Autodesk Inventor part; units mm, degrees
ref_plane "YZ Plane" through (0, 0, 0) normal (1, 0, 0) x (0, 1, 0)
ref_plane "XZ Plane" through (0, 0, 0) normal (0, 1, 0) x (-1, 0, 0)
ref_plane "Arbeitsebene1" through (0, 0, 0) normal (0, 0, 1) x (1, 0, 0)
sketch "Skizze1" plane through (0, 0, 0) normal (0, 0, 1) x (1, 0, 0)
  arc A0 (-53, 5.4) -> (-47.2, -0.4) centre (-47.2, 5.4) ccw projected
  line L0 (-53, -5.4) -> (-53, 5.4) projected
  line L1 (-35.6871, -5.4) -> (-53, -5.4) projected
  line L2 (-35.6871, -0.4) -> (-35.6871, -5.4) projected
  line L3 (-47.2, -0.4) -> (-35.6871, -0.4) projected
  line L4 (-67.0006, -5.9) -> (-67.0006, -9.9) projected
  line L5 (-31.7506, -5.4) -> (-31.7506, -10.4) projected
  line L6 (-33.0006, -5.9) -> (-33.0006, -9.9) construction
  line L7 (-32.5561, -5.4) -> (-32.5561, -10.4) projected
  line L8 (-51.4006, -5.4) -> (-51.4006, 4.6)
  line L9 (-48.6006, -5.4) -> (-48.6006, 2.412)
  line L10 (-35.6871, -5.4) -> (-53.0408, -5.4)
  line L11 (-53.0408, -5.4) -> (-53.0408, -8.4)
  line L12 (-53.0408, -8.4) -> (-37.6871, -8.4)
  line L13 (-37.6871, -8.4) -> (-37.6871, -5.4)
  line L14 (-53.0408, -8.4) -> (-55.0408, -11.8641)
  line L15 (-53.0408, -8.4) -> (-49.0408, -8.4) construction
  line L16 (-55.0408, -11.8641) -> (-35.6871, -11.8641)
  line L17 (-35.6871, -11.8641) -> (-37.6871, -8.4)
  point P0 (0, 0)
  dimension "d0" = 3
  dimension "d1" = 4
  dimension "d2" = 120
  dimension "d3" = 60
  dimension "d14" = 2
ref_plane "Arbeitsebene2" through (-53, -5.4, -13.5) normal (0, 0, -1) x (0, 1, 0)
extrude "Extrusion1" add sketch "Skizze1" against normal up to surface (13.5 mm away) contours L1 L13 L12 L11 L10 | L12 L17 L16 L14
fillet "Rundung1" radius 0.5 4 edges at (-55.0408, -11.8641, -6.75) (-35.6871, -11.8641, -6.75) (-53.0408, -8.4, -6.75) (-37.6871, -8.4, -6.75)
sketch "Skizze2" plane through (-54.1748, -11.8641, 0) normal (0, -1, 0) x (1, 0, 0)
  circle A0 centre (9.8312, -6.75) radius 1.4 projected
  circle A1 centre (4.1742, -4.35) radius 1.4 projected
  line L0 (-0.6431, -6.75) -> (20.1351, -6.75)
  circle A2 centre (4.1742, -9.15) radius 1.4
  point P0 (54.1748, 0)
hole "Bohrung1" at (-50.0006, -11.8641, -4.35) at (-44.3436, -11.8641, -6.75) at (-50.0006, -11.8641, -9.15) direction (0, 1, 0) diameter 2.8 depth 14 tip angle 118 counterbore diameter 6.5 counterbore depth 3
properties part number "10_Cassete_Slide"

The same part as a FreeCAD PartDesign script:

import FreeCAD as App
import Part
import Sketcher

V = App.Vector
Q = App.Units.Quantity


def edges_at(feature, points):
    """Names of the edges that pass closest to the given points."""
    edges = feature.Shape.Edges
    near = lambda p: min(range(len(edges)), key=lambda i: edges[i].distToShape(Part.Vertex(*p))[0])
    return sorted({f"Edge{near(p) + 1}" for p in points})


def add_polygon(sketch, points):
    """Adds a closed chain of lines whose ends are joined by coincident constraints."""
    first, n = sketch.GeometryCount, len(points)
    for a, b in zip(points, points[1:] + points[:1]):
        sketch.addGeometry(Part.LineSegment(App.Vector(*a, 0), App.Vector(*b, 0)), False)
    for i in range(n):
        sketch.addConstraint(Sketcher.Constraint("Coincident", first + i, 2, first + (i + 1) % n, 1))

doc = App.newDocument("Part")
params = doc.addObject("Spreadsheet::Sheet", "Params")
for row, (alias, value) in enumerate([
    ("sketch1_height", "3 mm"),
    ("sketch1_length", "4 mm"),
    ("pad1_length", "13.5 mm"),
    ("fillet_radius", "0.5 mm"),
    ("sketch2_diameter", "2.8 mm"),
    ("hole_diameter", "2.8 mm"),
    ("hole_depth", "14 mm"),
    ("hole_cbore_diameter", "6.5 mm"),
    ("hole_cbore_depth", "3 mm"),
], start=1):
    params.set(f"A{row}", alias)
    params.set(f"B{row}", "=" + value)
    params.setAlias(f"B{row}", alias)

body = doc.addObject("PartDesign::Body", "Body")

sketch1 = body.newObject("Sketcher::SketchObject", "Sketch")
sketch1.AttachmentSupport = (doc.getObject("XY_Plane"), [""])
sketch1.MapMode = "FlatFace"
add_polygon(sketch1, [(-53, -5.4), (-53, -8.4), (-55, -11.9), (-35.7, -11.9), (-37.7, -8.4), (-37.7, -5.4)])
sketch1.addConstraint([
    Sketcher.Constraint("Vertical", 0),
    Sketcher.Constraint("Horizontal", 2),
    Sketcher.Constraint("Vertical", 4),
    Sketcher.Constraint("Horizontal", 5),
    Sketcher.Constraint("Horizontal", 0, 2, 3, 2),
    Sketcher.Constraint("Equal", 1, 3),
    Sketcher.Constraint("DistanceY", 0, 2, 0, 1, 3.0),
    Sketcher.Constraint("Angle", 1, Q("-120 deg")),
    Sketcher.Constraint("Distance", 1, 4.0),
    Sketcher.Constraint("DistanceY", 0, 2, -1, 1, 8.4),
    Sketcher.Constraint("DistanceX", 2, 1, 2, 2, 19.3537),
    Sketcher.Constraint("DistanceX", 2, 2, -1, 1, 35.687),
])
sketch1.setExpression("Constraints[12]", "Params.sketch1_height")
sketch1.setExpression("Constraints[14]", "Params.sketch1_length")
pad1 = body.newObject("PartDesign::Pad", "Pad")
pad1.Profile = sketch1
pad1.setExpression("Length", "Params.pad1_length")
pad1.Reversed = True
doc.recompute()

fillet = body.newObject("PartDesign::Fillet", "Fillet")
fillet.Base = (pad1, edges_at(pad1, [
    (-55.041, -11.864, -6.75),
    (-35.687, -11.864, -6.75),
    (-53.041, -8.4, -6.75),
    (-37.687, -8.4, -6.75),
]))
fillet.setExpression("Radius", "Params.fillet_radius")

sketch2 = body.newObject("Sketcher::SketchObject", "Sketch001")
sketch2.AttachmentSupport = (doc.getObject("XZ_Plane"), [""])
sketch2.MapMode = "FlatFace"
sketch2.AttachmentOffset = App.Placement(V(0, 0, 11.8641), App.Rotation())
sketch2.addGeometry([
    Part.Circle(V(-50, -4.3, 0), V(0, 0, 1), 1.4),
    Part.Circle(V(-44.3, -6.8, 0), V(0, 0, 1), 1.4),
    Part.Circle(V(-50, -9.2, 0), V(0, 0, 1), 1.4),
], False)
sketch2.addConstraint([
    Sketcher.Constraint("Equal", 0, 1),
    Sketcher.Constraint("Equal", 1, 2),
    Sketcher.Constraint("Vertical", 0, 3, 2, 3),
    Sketcher.Constraint("Diameter", 0, 2.8),
    Sketcher.Constraint("DistanceY", 1, 3, 0, 3, 2.4),
    Sketcher.Constraint("DistanceY", 2, 3, 0, 3, 4.8),
    Sketcher.Constraint("DistanceY", 0, 3, -1, 1, 4.35),
    Sketcher.Constraint("DistanceX", 0, 3, 1, 3, 5.657),
    Sketcher.Constraint("DistanceX", 0, 3, -1, 1, 50.0006),
])
sketch2.setExpression("Constraints[3]", "Params.sketch2_diameter")
doc.recompute()
hole = body.newObject("PartDesign::Hole", "Hole")
hole.Profile = sketch2
hole.ThreadType = "None"
hole.setExpression("Diameter", "Params.hole_diameter")
hole.DepthType = "Dimension"
hole.setExpression("Depth", "Params.hole_depth")
hole.DrillPoint = "Angled"
hole.DrillPointAngle = 118
hole.HoleCutType = "Counterbore"
hole.setExpression("HoleCutDiameter", "Params.hole_cbore_diameter")
hole.setExpression("HoleCutDepth", "Params.hole_cbore_depth")

doc.recompute()
